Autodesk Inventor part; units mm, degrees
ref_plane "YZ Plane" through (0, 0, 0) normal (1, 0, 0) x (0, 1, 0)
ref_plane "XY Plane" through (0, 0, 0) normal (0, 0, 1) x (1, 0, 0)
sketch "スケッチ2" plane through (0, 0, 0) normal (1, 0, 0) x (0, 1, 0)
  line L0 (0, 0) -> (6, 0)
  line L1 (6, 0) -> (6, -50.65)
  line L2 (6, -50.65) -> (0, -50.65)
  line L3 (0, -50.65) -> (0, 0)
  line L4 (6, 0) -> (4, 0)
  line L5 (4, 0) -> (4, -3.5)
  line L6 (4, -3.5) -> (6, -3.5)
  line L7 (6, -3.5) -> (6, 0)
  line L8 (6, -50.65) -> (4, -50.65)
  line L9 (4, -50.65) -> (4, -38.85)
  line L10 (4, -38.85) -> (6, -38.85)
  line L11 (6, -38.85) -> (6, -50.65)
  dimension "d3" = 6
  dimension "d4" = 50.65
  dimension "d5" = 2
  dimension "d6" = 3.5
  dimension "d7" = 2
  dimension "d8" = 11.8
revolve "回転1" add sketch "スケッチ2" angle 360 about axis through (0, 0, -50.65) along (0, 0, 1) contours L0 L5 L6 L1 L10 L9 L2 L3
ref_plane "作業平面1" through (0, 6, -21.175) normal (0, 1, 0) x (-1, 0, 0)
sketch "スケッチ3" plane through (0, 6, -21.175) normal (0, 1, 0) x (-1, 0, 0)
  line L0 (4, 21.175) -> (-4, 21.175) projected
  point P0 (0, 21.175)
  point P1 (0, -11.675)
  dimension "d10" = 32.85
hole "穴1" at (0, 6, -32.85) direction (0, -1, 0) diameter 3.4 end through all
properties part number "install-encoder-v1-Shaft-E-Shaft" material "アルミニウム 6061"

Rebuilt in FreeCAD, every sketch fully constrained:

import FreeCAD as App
import Part
import Sketcher
from FreeCAD import Vector
Q = App.Units.Quantity


def add_polygon(sketch, points):
    """Adds a closed chain of lines whose ends are joined by coincident constraints."""
    first, n = sketch.GeometryCount, len(points)
    for a, b in zip(points, points[1:] + points[:1]):
        sketch.addGeometry(Part.LineSegment(App.Vector(*a, 0), App.Vector(*b, 0)), False)
    for i in range(n):
        sketch.addConstraint(Sketcher.Constraint("Coincident", first + i, 2, first + (i + 1) % n, 1))

doc = App.newDocument("Part")
body = doc.addObject("PartDesign::Body", "Body")

sketch1 = body.newObject("Sketcher::SketchObject", "Sketch")
sketch1.AttachmentSupport = (doc.getObject("YZ_Plane"), [""])
sketch1.MapMode = "FlatFace"
add_polygon(sketch1, [(4, 0), (0, 0), (0, -50.6), (4, -50.6), (4, -38.9), (6, -38.9), (6, -3.5), (4, -3.5)])
sketch1.addConstraint([
    Sketcher.Constraint("Horizontal", 0),
    Sketcher.Constraint("Vertical", 1),
    Sketcher.Constraint("Horizontal", 2),
    Sketcher.Constraint("Vertical", 3),
    Sketcher.Constraint("Horizontal", 4),
    Sketcher.Constraint("Vertical", 5),
    Sketcher.Constraint("Horizontal", 6),
    Sketcher.Constraint("Vertical", 7),
    Sketcher.Constraint("Coincident", 0, 2, -1, 1),
    Sketcher.Constraint("Vertical", 3, 2, 6, 2),
    Sketcher.Constraint("DistanceX", 4, 1, 4, 2, Q("2 mm")),
    Sketcher.Constraint("DistanceY", 3, 1, 3, 2, Q("11.8 mm")),
    Sketcher.Constraint("DistanceY", 7, 1, 7, 2, Q("3.5 mm")),
    Sketcher.Constraint("DistanceX", -1, 1, 4, 2, Q("6 mm")),
    Sketcher.Constraint("DistanceY", 1, 2, 1, 1, Q("50.65 mm")),
])
revolution = body.newObject("PartDesign::Revolution", "Revolution")
revolution.Profile = sketch1
revolution.ReferenceAxis = (sketch1, ["V_Axis"])
revolution.Angle = 360

sketch2 = body.newObject("Sketcher::SketchObject", "Sketch001")
sketch2.AttachmentSupport = (doc.getObject("XZ_Plane"), [""])
sketch2.MapMode = "FlatFace"
sketch2.AttachmentOffset = App.Placement(Vector(0, 0, -6), App.Rotation())
sketch2.addGeometry(Part.Circle(Vector(0, -32.9, 0), Vector(0, 0, 1), 1.7), False)
sketch2.addConstraint([
    Sketcher.Constraint("PointOnObject", 0, 3, -2),
    Sketcher.Constraint("Diameter", 0, Q("3.4 mm")),
    Sketcher.Constraint("DistanceY", 0, 3, -1, 1, Q("32.85 mm")),
])
doc.recompute()
hole = body.newObject("PartDesign::Hole", "Hole")
hole.Profile = sketch2
hole.ThreadType = "None"
hole.Diameter = 3.4
hole.DepthType = "ThroughAll"
hole.Reversed = True

doc.recompute()
